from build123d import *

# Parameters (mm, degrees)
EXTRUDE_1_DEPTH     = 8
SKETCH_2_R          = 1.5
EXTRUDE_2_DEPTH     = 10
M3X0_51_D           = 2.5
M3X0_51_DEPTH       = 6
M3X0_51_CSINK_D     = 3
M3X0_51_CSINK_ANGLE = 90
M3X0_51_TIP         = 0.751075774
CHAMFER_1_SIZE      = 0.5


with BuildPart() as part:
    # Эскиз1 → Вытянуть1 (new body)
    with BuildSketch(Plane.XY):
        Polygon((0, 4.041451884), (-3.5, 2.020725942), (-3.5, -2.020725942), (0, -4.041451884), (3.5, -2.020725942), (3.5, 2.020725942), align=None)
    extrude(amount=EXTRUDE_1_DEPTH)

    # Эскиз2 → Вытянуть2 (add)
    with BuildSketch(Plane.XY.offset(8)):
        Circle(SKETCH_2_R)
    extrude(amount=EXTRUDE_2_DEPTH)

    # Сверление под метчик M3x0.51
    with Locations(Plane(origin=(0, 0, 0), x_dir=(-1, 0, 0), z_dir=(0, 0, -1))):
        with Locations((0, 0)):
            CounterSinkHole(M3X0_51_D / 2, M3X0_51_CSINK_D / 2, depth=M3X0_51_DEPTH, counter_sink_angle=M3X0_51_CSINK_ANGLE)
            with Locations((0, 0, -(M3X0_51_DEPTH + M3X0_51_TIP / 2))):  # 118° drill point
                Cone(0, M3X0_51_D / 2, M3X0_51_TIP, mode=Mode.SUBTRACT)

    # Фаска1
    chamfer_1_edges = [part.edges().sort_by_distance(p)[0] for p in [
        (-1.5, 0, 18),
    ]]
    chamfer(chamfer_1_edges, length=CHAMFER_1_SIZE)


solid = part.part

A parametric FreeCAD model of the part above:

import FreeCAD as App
import Part
import Sketcher
from FreeCAD import Vector
Q = App.Units.Quantity


def edges_at(feature, points):
    """Names of the edges that pass closest to the given points."""
    edges = feature.Shape.Edges
    near = lambda p: min(range(len(edges)), key=lambda i: edges[i].distToShape(Part.Vertex(*p))[0])
    return sorted({f"Edge{near(p) + 1}" for p in points})


def add_polygon(sketch, points):
    """Adds a closed chain of lines whose ends are joined by coincident constraints."""
    first, n = sketch.GeometryCount, len(points)
    for a, b in zip(points, points[1:] + points[:1]):
        sketch.addGeometry(Part.LineSegment(App.Vector(*a, 0), App.Vector(*b, 0)), False)
    for i in range(n):
        sketch.addConstraint(Sketcher.Constraint("Coincident", first + i, 2, first + (i + 1) % n, 1))

doc = App.newDocument("Part")
body = doc.addObject("PartDesign::Body", "Body")

# Sketch on XY plane
sketch1 = body.newObject("Sketcher::SketchObject", "Sketch")
sketch1.AttachmentSupport = (doc.getObject("XY_Plane"), [""])
sketch1.MapMode = "FlatFace"
add_polygon(sketch1, [(0, 4), (-3.5, 2), (-3.5, -2), (0, -4), (3.5, -2), (3.5, 2)])  # lines 0-5
sketch1.addConstraint([
    Sketcher.Constraint("Vertical", 1),
    Sketcher.Constraint("Vertical", 4),
    Sketcher.Constraint("Symmetric", 0, 2, 3, 2, -1, 1),
    Sketcher.Constraint("Symmetric", 2, 2, 5, 2, -1, 1),
    Sketcher.Constraint("PointOnObject", 2, 2, -2),
    Sketcher.Constraint("Parallel", 2, 5),
    Sketcher.Constraint("Horizontal", 1, 2, 3, 2),
    Sketcher.Constraint("Angle", 0, Q("-150 deg")),
    Sketcher.Constraint("DistanceX", 1, 2, 3, 2, 7.0),
    Sketcher.Constraint("DistanceY", 1, 2, 1, 1, 4.041452),
])
pad1 = body.newObject("PartDesign::Pad", "Pad")
pad1.Profile = sketch1
pad1.Length = 8

# Sketch on XY plane
sketch2 = body.newObject("Sketcher::SketchObject", "Sketch001")
sketch2.AttachmentSupport = (doc.getObject("XY_Plane"), [""])
sketch2.MapMode = "FlatFace"
sketch2.AttachmentOffset = App.Placement(Vector(0, 0, 8), App.Rotation())
sketch2.addGeometry(Part.Circle(Vector(0, 0, 0), Vector(0, 0, 1), 1.5), False)
sketch2.addConstraint([
    Sketcher.Constraint("Coincident", 0, 3, -1, 1),
    Sketcher.Constraint("Diameter", 0, 3.0),
])
pad2 = body.newObject("PartDesign::Pad", "Pad001")
pad2.Profile = sketch2
pad2.Length = 10

# Sketch on XY plane
sketch3 = body.newObject("Sketcher::SketchObject", "Sketch002")
sketch3.AttachmentSupport = (doc.getObject("XY_Plane"), [""])
sketch3.MapMode = "FlatFace"
sketch3.addGeometry(Part.Circle(Vector(0, 0, 0), Vector(0, 0, 1), 1.2), False)
sketch3.addConstraint([
    Sketcher.Constraint("Coincident", 0, 3, -1, 1),
    Sketcher.Constraint("Diameter", 0, 2.5),
])
doc.recompute()
hole = body.newObject("PartDesign::Hole", "Hole")
hole.Profile = sketch3
hole.ThreadType = "None"
hole.Diameter = 2.5
hole.DepthType = "Dimension"
hole.Depth = 6
hole.DrillPoint = "Angled"
hole.DrillPointAngle = 118
hole.HoleCutType = "Countersink"
hole.HoleCutDiameter = 3
hole.HoleCutCountersinkAngle = 90
hole.Reversed = True
doc.recompute()

chamfer = body.newObject("PartDesign::Chamfer", "Chamfer")
chamfer.Base = (hole, edges_at(hole, [(-1.5, 0, 18)]))
chamfer.Size = 0.5

doc.recompute()
